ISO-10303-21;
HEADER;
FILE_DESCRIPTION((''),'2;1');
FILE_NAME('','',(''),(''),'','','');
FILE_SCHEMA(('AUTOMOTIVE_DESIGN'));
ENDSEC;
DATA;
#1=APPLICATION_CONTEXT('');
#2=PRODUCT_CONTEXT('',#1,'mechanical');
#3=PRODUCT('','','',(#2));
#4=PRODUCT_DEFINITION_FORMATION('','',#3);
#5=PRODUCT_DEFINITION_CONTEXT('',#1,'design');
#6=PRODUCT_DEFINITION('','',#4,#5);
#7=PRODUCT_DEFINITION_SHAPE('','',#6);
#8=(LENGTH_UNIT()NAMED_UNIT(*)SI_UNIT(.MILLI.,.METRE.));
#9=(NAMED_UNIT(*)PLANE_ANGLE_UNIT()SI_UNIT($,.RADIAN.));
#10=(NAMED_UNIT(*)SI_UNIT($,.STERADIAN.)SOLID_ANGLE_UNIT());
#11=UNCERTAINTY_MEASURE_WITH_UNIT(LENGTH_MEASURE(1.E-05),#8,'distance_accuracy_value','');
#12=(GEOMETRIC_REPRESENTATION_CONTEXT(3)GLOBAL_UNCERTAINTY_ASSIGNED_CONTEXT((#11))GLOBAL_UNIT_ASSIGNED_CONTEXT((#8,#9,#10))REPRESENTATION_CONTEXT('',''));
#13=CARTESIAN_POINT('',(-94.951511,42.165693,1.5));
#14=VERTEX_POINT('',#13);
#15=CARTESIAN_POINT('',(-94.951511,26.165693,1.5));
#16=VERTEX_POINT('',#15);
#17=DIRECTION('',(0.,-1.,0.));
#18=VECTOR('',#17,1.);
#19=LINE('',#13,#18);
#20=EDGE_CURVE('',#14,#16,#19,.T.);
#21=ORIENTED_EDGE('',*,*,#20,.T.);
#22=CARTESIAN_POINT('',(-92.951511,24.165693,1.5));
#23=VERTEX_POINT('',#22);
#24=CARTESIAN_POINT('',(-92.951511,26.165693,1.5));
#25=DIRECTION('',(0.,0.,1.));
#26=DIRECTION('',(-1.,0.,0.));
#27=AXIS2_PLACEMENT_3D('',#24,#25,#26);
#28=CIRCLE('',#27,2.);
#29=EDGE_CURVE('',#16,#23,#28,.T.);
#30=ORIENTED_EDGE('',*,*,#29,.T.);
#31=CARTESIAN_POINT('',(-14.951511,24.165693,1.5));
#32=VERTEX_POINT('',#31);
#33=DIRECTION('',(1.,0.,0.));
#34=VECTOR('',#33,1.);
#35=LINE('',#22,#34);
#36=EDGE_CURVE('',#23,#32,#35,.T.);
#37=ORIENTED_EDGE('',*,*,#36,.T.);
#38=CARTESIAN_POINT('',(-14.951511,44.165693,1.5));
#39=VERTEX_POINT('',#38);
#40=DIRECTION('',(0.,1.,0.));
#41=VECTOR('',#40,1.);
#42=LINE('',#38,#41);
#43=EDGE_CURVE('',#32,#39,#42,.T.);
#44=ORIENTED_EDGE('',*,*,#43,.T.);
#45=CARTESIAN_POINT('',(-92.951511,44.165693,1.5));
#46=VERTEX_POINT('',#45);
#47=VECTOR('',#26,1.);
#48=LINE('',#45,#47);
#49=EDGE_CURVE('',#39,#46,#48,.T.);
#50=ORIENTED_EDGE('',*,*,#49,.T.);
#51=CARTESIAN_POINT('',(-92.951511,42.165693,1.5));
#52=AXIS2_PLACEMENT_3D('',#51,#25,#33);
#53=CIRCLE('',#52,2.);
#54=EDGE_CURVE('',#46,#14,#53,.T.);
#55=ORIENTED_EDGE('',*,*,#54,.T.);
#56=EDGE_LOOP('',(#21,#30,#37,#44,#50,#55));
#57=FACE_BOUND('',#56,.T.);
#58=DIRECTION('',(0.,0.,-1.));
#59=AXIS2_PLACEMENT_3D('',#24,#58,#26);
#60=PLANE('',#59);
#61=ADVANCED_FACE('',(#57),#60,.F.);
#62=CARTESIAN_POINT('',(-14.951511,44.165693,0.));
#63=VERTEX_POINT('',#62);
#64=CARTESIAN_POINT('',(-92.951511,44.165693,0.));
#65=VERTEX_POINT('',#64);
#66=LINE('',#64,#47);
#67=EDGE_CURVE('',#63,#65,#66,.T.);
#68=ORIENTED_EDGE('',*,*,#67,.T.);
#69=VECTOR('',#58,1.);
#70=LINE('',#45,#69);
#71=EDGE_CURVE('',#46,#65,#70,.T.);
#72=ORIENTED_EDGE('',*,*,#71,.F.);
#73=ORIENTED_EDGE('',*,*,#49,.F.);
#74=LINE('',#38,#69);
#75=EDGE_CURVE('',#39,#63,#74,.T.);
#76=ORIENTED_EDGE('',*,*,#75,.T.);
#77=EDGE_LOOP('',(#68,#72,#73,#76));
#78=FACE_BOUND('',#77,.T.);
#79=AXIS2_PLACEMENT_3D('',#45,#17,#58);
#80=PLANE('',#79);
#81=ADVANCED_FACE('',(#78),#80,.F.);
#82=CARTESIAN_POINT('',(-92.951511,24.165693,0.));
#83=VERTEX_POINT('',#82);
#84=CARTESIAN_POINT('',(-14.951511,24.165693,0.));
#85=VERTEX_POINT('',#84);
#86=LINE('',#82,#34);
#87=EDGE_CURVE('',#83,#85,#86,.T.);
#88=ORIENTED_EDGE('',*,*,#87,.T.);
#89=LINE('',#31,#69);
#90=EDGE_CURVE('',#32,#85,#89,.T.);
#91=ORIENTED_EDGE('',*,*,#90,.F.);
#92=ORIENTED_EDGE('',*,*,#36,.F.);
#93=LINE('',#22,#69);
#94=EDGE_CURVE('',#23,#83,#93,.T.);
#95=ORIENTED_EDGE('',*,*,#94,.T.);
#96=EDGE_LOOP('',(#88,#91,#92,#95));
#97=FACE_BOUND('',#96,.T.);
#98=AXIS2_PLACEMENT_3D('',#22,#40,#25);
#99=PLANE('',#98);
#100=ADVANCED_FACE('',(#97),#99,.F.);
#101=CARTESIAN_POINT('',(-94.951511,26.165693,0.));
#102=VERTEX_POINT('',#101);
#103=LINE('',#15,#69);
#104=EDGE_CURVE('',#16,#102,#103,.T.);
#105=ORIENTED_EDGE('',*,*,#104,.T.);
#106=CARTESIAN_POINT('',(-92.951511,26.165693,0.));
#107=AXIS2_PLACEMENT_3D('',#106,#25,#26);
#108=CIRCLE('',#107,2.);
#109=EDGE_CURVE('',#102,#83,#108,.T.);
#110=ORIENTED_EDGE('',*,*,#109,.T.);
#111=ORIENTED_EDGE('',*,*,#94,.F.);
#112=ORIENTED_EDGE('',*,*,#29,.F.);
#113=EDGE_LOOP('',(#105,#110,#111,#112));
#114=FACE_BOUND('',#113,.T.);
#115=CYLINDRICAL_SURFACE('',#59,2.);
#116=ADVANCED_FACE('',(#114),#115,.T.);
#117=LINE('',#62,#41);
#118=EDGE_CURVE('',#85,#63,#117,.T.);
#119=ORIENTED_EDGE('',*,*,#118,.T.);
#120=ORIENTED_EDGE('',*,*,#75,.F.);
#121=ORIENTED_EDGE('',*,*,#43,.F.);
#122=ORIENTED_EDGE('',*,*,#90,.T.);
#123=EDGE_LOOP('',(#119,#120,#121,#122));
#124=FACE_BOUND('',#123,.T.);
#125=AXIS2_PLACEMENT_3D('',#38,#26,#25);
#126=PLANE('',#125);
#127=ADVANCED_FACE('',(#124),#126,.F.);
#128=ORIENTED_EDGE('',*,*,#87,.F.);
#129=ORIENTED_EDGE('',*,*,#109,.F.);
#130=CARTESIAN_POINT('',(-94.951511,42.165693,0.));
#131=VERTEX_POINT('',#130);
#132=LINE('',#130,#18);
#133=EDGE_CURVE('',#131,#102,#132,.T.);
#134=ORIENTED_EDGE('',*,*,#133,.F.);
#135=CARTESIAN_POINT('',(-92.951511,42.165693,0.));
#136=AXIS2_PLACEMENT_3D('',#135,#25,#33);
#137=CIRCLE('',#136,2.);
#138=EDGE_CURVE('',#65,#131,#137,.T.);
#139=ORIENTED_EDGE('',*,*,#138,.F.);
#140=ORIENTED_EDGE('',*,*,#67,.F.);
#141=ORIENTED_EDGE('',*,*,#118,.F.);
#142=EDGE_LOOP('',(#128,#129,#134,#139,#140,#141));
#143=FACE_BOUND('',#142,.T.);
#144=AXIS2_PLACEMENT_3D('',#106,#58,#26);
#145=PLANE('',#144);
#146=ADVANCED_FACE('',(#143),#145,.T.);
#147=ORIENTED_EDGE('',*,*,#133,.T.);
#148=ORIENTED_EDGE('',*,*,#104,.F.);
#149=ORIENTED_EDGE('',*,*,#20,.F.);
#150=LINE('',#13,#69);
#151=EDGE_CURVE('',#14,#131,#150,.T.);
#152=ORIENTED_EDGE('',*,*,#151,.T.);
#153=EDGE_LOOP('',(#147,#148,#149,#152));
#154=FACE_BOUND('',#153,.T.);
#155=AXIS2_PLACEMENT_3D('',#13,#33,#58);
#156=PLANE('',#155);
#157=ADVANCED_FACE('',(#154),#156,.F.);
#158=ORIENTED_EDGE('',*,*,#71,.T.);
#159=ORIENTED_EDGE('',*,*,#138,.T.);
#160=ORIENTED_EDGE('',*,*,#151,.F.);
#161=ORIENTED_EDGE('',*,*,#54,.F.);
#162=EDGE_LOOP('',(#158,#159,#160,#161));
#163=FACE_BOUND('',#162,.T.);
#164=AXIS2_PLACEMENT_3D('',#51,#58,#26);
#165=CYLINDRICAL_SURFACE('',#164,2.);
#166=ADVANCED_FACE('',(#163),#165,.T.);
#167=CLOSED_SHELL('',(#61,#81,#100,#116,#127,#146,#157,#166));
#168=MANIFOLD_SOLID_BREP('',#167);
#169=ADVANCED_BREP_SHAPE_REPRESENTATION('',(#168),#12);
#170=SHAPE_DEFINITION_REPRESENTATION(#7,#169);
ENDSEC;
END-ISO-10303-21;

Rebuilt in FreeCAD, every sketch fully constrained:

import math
import FreeCAD as App
import Part
import Sketcher

V = App.Vector

doc = App.newDocument("Part")
params = doc.addObject("Spreadsheet::Sheet", "Params")
for row, (alias, value) in enumerate([
    ("sketch1_radius", "2 mm"),
    ("sketch1_width", "78 mm"),
    ("sketch1_height", "16 mm"),
    ("pad1_length", "1.5 mm"),
], start=1):
    params.set(f"A{row}", alias)
    params.set(f"B{row}", "=" + value)
    params.setAlias(f"B{row}", alias)

body = doc.addObject("PartDesign::Body", "Body")

# Sketch on XY plane
sketch1 = body.newObject("Sketcher::SketchObject", "Sketch")
sketch1.AttachmentSupport = (doc.getObject("XY_Plane"), [""])
sketch1.MapMode = "FlatFace"
sketch1.addGeometry(Part.LineSegment(V(-15, 44.2, 0), V(-93, 44.2, 0)), False)
sketch1.addGeometry(Part.ArcOfCircle(Part.Circle(V(-93, 42.2, 0), V(0, 0, 1), 2), math.radians(90), math.radians(180)), False)
sketch1.addGeometry(Part.LineSegment(V(-95, 42.2, 0), V(-95, 26.2, 0)), False)
sketch1.addGeometry(Part.ArcOfCircle(Part.Circle(V(-93, 26.2, 0), V(0, 0, 1), 2), math.radians(180), math.radians(270)), False)
sketch1.addGeometry(Part.LineSegment(V(-93, 24.2, 0), V(-15, 24.2, 0)), False)
sketch1.addGeometry(Part.LineSegment(V(-15, 24.2, 0), V(-15, 44.2, 0)), False)
sketch1.addConstraint(Sketcher.Constraint("Tangent", 0, 2, 1, 1))
sketch1.addConstraint(Sketcher.Constraint("Tangent", 1, 2, 2, 1))
sketch1.addConstraint(Sketcher.Constraint("Tangent", 2, 2, 3, 1))
sketch1.addConstraint(Sketcher.Constraint("Tangent", 3, 2, 4, 1))
sketch1.addConstraint(Sketcher.Constraint("Coincident", 4, 2, 5, 1))
sketch1.addConstraint(Sketcher.Constraint("Coincident", 5, 2, 0, 1))
sketch1.addConstraint(Sketcher.Constraint("Horizontal", 0))
sketch1.addConstraint(Sketcher.Constraint("Vertical", 2))
sketch1.addConstraint(Sketcher.Constraint("Horizontal", 4))
sketch1.addConstraint(Sketcher.Constraint("Vertical", 5))
sketch1.addConstraint(Sketcher.Constraint("Equal", 1, 3))
sketch1.addConstraint(Sketcher.Constraint("Radius", 1, 2.0))
sketch1.addConstraint(Sketcher.Constraint("DistanceX", 0, 2, 0, 1, 78.0))
sketch1.addConstraint(Sketcher.Constraint("DistanceY", 2, 2, 2, 1, 16.0))
sketch1.addConstraint(Sketcher.Constraint("DistanceX", 1, 3, -1, 1, 92.951511))
sketch1.addConstraint(Sketcher.Constraint("DistanceY", -1, 1, 1, 3, 42.165693))
sketch1.setExpression("Constraints[11]", "Params.sketch1_radius")
sketch1.setExpression("Constraints[12]", "Params.sketch1_width")
sketch1.setExpression("Constraints[13]", "Params.sketch1_height")
pad1 = body.newObject("PartDesign::Pad", "Pad")
pad1.Profile = sketch1
pad1.setExpression("Length", "Params.pad1_length")

doc.recompute()
